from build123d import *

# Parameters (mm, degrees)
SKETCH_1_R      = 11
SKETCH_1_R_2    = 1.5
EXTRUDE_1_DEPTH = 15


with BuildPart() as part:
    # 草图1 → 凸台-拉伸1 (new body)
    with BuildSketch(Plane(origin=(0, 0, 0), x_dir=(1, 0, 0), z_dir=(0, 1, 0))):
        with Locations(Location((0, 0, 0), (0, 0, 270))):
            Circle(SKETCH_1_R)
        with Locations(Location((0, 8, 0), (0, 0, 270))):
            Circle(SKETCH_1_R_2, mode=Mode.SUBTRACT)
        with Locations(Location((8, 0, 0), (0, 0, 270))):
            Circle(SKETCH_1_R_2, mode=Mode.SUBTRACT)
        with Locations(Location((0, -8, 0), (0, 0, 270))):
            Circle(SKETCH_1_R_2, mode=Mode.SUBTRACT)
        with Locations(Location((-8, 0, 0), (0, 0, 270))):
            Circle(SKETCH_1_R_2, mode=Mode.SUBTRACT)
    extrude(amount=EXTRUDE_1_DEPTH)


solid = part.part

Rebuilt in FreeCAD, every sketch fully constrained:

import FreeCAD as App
import Part
import Sketcher
Q = App.Units.Quantity

doc = App.newDocument("Part")
body = doc.addObject("PartDesign::Body", "Body")

# Sketch on XZ plane
sketch1 = body.newObject("Sketcher::SketchObject", "Sketch")
sketch1.AttachmentSupport = (doc.getObject("XZ_Plane"), [""])
sketch1.MapMode = "FlatFace"
sketch1.addGeometry(Part.Circle(App.Vector(0, 0, 0), App.Vector(0, 0, 1), 11), False)
sketch1.addGeometry(Part.Circle(App.Vector(0, -8, 0), App.Vector(0, 0, 1), 1.5), False)
sketch1.addGeometry(Part.Circle(App.Vector(-8, 0, 0), App.Vector(0, 0, 1), 1.5), False)
sketch1.addGeometry(Part.Circle(App.Vector(8, 0, 0), App.Vector(0, 0, 1), 1.5), False)
sketch1.addGeometry(Part.Circle(App.Vector(0, 8, 0), App.Vector(0, 0, 1), 1.5), False)
sketch1.addConstraint(Sketcher.Constraint("Coincident", 0, 3, -1, 1))
sketch1.addConstraint(Sketcher.Constraint("Equal", 1, 2))
sketch1.addConstraint(Sketcher.Constraint("Equal", 2, 3))
sketch1.addConstraint(Sketcher.Constraint("Equal", 3, 4))
sketch1.addConstraint(Sketcher.Constraint("Symmetric", 2, 3, 3, 3, -1, 1))
sketch1.addConstraint(Sketcher.Constraint("Symmetric", 1, 3, 4, 3, -1, 1))
sketch1.addConstraint(Sketcher.Constraint("PointOnObject", 1, 3, -2))
sketch1.addConstraint(Sketcher.Constraint("PointOnObject", 2, 3, -1))
sketch1.addConstraint(Sketcher.Constraint("Diameter", 0, Q("22 mm")))
sketch1.addConstraint(Sketcher.Constraint("Diameter", 1, Q("3 mm")))
sketch1.addConstraint(Sketcher.Constraint("DistanceY", 1, 3, -1, 1, Q("8 mm")))
sketch1.addConstraint(Sketcher.Constraint("DistanceX", 2, 3, -1, 1, Q("8 mm")))
pad1 = body.newObject("PartDesign::Pad", "Pad")
pad1.Profile = sketch1
pad1.Length = 15
pad1.Reversed = True

doc.recompute()
